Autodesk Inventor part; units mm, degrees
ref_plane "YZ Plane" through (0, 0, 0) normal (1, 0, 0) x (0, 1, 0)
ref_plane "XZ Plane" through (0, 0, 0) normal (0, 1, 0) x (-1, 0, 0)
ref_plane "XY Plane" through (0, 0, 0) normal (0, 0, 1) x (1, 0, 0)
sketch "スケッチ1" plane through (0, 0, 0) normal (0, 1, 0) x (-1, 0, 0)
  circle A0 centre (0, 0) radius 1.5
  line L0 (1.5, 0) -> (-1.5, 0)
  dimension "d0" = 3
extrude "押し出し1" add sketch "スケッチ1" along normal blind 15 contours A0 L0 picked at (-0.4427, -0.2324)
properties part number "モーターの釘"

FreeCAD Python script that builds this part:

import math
import FreeCAD as App
import Part
import Sketcher

V = App.Vector

doc = App.newDocument("Part")
body = doc.addObject("PartDesign::Body", "Body")

sketch1 = body.newObject("Sketcher::SketchObject", "Sketch")
sketch1.AttachmentSupport = (doc.getObject("XZ_Plane"), [""])
sketch1.MapMode = "FlatFace"
sketch1.addGeometry([
    Part.ArcOfCircle(Part.Circle(V(0, 0, 0), V(0, 0, 1), 1.5), math.radians(180), math.radians(360)),
    Part.LineSegment(V(-1.5, 0, 0), V(1.5, 0, 0)),
], False)
sketch1.addConstraint([
    Sketcher.Constraint("Coincident", 0, 1, 1, 1),
    Sketcher.Constraint("Coincident", 1, 2, 0, 2),
    Sketcher.Constraint("Horizontal", 1),
    Sketcher.Constraint("Coincident", 0, 3, -1, 1),
    Sketcher.Constraint("PointOnObject", 0, 1, -1),
    Sketcher.Constraint("Radius", 0, 1.5),
])
pad1 = body.newObject("PartDesign::Pad", "Pad")
pad1.Profile = sketch1
pad1.Length = 15
pad1.Reversed = True

doc.recompute()
